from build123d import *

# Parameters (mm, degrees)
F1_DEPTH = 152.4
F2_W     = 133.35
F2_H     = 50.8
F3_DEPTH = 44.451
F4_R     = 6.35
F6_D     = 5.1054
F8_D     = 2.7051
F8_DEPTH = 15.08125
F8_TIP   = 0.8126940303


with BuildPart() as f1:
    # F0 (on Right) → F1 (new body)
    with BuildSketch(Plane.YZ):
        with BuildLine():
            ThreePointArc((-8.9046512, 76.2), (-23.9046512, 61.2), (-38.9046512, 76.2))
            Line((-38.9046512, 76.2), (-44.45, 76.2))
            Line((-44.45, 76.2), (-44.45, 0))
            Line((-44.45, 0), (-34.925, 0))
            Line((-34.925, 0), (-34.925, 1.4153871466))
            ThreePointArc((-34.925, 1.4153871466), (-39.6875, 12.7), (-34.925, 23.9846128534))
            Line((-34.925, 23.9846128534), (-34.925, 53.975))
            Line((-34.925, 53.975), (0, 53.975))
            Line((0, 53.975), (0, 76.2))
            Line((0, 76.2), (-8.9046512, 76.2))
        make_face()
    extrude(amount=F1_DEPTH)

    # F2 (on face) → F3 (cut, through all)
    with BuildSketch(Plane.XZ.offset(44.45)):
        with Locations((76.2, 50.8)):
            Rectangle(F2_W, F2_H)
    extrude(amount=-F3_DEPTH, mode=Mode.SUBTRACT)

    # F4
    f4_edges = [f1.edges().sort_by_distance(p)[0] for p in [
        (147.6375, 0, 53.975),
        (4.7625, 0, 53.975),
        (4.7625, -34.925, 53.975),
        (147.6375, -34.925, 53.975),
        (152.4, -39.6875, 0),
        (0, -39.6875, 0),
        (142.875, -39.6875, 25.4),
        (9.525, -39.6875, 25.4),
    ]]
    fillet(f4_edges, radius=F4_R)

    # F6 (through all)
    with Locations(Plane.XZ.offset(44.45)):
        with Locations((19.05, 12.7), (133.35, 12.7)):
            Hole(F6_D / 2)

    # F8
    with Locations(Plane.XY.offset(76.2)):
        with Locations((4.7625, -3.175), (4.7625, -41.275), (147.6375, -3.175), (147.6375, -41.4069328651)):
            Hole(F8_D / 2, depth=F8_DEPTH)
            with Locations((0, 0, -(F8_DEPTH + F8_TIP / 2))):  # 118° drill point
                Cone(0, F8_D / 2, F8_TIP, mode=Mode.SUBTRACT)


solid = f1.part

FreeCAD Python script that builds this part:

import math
import FreeCAD as App
import Part
import Sketcher
from FreeCAD import Vector
Q = App.Units.Quantity


def edges_at(feature, points):
    """Names of the edges that pass closest to the given points."""
    edges = feature.Shape.Edges
    near = lambda p: min(range(len(edges)), key=lambda i: edges[i].distToShape(Part.Vertex(*p))[0])
    return sorted({f"Edge{near(p) + 1}" for p in points})


def add_polygon(sketch, points):
    """Adds a closed chain of lines whose ends are joined by coincident constraints."""
    first, n = sketch.GeometryCount, len(points)
    for a, b in zip(points, points[1:] + points[:1]):
        sketch.addGeometry(Part.LineSegment(App.Vector(*a, 0), App.Vector(*b, 0)), False)
    for i in range(n):
        sketch.addConstraint(Sketcher.Constraint("Coincident", first + i, 2, first + (i + 1) % n, 1))

doc = App.newDocument("Part")
params = doc.addObject("Spreadsheet::Sheet", "Params")
for row, (alias, value) in enumerate([
    ("sketch1_height", "3 in"),
    ("sketch1_width", "0.375 in"),
    ("sketch1_width2", "1.375 in"),
    ("sketch1_height2", "0.875 in"),
    ("pad1_length", "6 in"),
    ("sketch2_height", "2 in"),
    ("sketch2_width", "5.25 in"),
    ("fillet_radius", "0.25 in"),
    ("sketch3_diameter", "0.201 in"),
    ("hole_diameter", "0.201 in"),
    ("hole2_diameter", "0.1065 in"),
    ("hole2_depth", "0.59375 in"),
], start=1):
    params.set(f"A{row}", alias)
    params.set(f"B{row}", "=" + value)
    params.setAlias(f"B{row}", alias)

body = doc.addObject("PartDesign::Body", "Body")

sketch1 = body.newObject("Sketcher::SketchObject", "Sketch")
sketch1.AttachmentSupport = (doc.getObject("YZ_Plane"), [""])
sketch1.MapMode = "FlatFace"
sketch1.addGeometry([
    Part.ArcOfCircle(Part.Circle(Vector(-23.904651, 76.2, 0), Vector(0, 0, 1), 15), math.radians(180), math.radians(360)),
    Part.LineSegment(Vector(-38.904651, 76.2, 0), Vector(-44.45, 76.2, 0)),
    Part.LineSegment(Vector(-44.45, 76.2, 0), Vector(-44.45, 0, 0)),
    Part.LineSegment(Vector(-44.45, 0, 0), Vector(-34.925, 0, 0)),
    Part.LineSegment(Vector(-34.925, 0, 0), Vector(-34.925, 1.415387, 0)),
    Part.ArcOfCircle(Part.Circle(Vector(-23.93696, 12.7, 0), Vector(0, 0, 1), 15.75054), math.radians(134.23712), math.radians(225.76288)),
    Part.LineSegment(Vector(-34.925, 23.984613, 0), Vector(-34.925, 53.975, 0)),
    Part.LineSegment(Vector(-34.925, 53.975, 0), Vector(0, 53.975, 0)),
    Part.LineSegment(Vector(0, 53.975, 0), Vector(0, 76.2, 0)),
    Part.LineSegment(Vector(0, 76.2, 0), Vector(-8.904651, 76.2, 0)),
], False)
sketch1.addConstraint([
    Sketcher.Constraint("Coincident", 0, 1, 1, 1),
    Sketcher.Constraint("Coincident", 1, 2, 2, 1),
    Sketcher.Constraint("Coincident", 2, 2, 3, 1),
    Sketcher.Constraint("Coincident", 3, 2, 4, 1),
    Sketcher.Constraint("Coincident", 4, 2, 5, 2),
    Sketcher.Constraint("Coincident", 5, 1, 6, 1),
    Sketcher.Constraint("Coincident", 6, 2, 7, 1),
    Sketcher.Constraint("Coincident", 7, 2, 8, 1),
    Sketcher.Constraint("Coincident", 8, 2, 9, 1),
    Sketcher.Constraint("Coincident", 9, 2, 0, 2),
    Sketcher.Constraint("Horizontal", 1),
    Sketcher.Constraint("Vertical", 2),
    Sketcher.Constraint("Horizontal", 3),
    Sketcher.Constraint("Vertical", 4),
    Sketcher.Constraint("Vertical", 6),
    Sketcher.Constraint("Horizontal", 7),
    Sketcher.Constraint("Vertical", 8),
    Sketcher.Constraint("Horizontal", 9),
    Sketcher.Constraint("PointOnObject", 2, 2, -1),
    Sketcher.Constraint("PointOnObject", 7, 2, -2),
    Sketcher.Constraint("Horizontal", 1, 2, 8, 2),
    Sketcher.Constraint("Vertical", 4, 2, 5, 1),
    Sketcher.Constraint("DistanceY", 2, 2, 2, 1, Q("3 in")),
    Sketcher.Constraint("DistanceY", -1, 1, 0, 3, Q("3 in")),
    Sketcher.Constraint("DistanceY", -1, 1, 5, 3, Q("0.5 in")),
    Sketcher.Constraint("Radius", 5, Q("0.6201 in")),
    Sketcher.Constraint("DistanceX", 3, 1, 3, 2, Q("0.375 in")),
    Sketcher.Constraint("DistanceX", 7, 1, 7, 2, Q("1.375 in")),
    Sketcher.Constraint("DistanceY", 8, 1, 8, 2, Q("0.875 in")),
    Sketcher.Constraint("Radius", 0, Q("15 mm")),
    Sketcher.Constraint("DistanceX", 5, 3, -1, 1, Q("0.9424 in")),
    Sketcher.Constraint("DistanceX", 1, 2, 1, 1, Q("5.545349 mm")),
])
sketch1.setExpression("Constraints[22]", "Params.sketch1_height")
sketch1.setExpression("Constraints[26]", "Params.sketch1_width")
sketch1.setExpression("Constraints[27]", "Params.sketch1_width2")
sketch1.setExpression("Constraints[28]", "Params.sketch1_height2")
pad1 = body.newObject("PartDesign::Pad", "Pad")
pad1.Profile = sketch1
pad1.setExpression("Length", "Params.pad1_length")

sketch2 = body.newObject("Sketcher::SketchObject", "Sketch001")
sketch2.AttachmentSupport = (doc.getObject("XZ_Plane"), [""])
sketch2.MapMode = "FlatFace"
sketch2.AttachmentOffset = App.Placement(Vector(0, 0, 1.75 * 25.4), App.Rotation())
add_polygon(sketch2, [(9.525, 76.2), (9.525, 25.4), (142.875, 25.4), (142.875, 76.2)])
sketch2.addConstraint([
    Sketcher.Constraint("Vertical", 0),
    Sketcher.Constraint("Horizontal", 1),
    Sketcher.Constraint("Vertical", 2),
    Sketcher.Constraint("Horizontal", 3),
    Sketcher.Constraint("DistanceY", 0, 2, 0, 1, Q("2 in")),
    Sketcher.Constraint("DistanceY", -1, 1, 0, 2, Q("1 in")),
    Sketcher.Constraint("DistanceX", 1, 1, 1, 2, Q("5.25 in")),
    Sketcher.Constraint("DistanceX", -1, 1, 0, 2, Q("0.375 in")),
])
sketch2.setExpression("Constraints[8]", "Params.sketch2_height")
sketch2.setExpression("Constraints[10]", "Params.sketch2_width")
pocket1 = body.newObject("PartDesign::Pocket", "Pocket")
pocket1.Profile = sketch2
pocket1.Type = "ThroughAll"
doc.recompute()

fillet = body.newObject("PartDesign::Fillet", "Fillet")
fillet.Base = (pocket1, edges_at(pocket1, [
    (147.637, 0, 53.975),
    (4.763, 0, 53.975),
    (4.763, -34.925, 53.975),
    (147.637, -34.925, 53.975),
    (152.4, -39.688, 0),
    (0, -39.688, 0),
    (142.875, -39.688, 25.4),
    (9.525, -39.688, 25.4),
]))
fillet.setExpression("Radius", "Params.fillet_radius")

sketch3 = body.newObject("Sketcher::SketchObject", "Sketch002")
sketch3.AttachmentSupport = (doc.getObject("XZ_Plane"), [""])
sketch3.MapMode = "FlatFace"
sketch3.AttachmentOffset = App.Placement(Vector(0, 0, 1.75 * 25.4), App.Rotation())
sketch3.addGeometry([
    Part.Circle(Vector(19.05, 12.7, 0), Vector(0, 0, 1), 2.5527),
    Part.Circle(Vector(133.35, 12.7, 0), Vector(0, 0, 1), 2.5527),
], False)
sketch3.addConstraint([
    Sketcher.Constraint("Equal", 0, 1),
    Sketcher.Constraint("Horizontal", 0, 3, 1, 3),
    Sketcher.Constraint("Diameter", 0, Q("0.201 in")),
    Sketcher.Constraint("DistanceY", -1, 1, 0, 3, Q("0.5 in")),
    Sketcher.Constraint("DistanceX", 0, 3, 1, 3, Q("4.5 in")),
    Sketcher.Constraint("DistanceX", -1, 1, 0, 3, Q("0.75 in")),
])
sketch3.setExpression("Constraints[2]", "Params.sketch3_diameter")
doc.recompute()
hole = body.newObject("PartDesign::Hole", "Hole")
hole.Profile = sketch3
hole.ThreadType = "None"
hole.setExpression("Diameter", "Params.hole_diameter")
hole.DepthType = "ThroughAll"

sketch4 = body.newObject("Sketcher::SketchObject", "Sketch003")
sketch4.AttachmentSupport = (doc.getObject("XY_Plane"), [""])
sketch4.MapMode = "FlatFace"
sketch4.AttachmentOffset = App.Placement(Vector(0, 0, 3 * 25.4), App.Rotation())
sketch4.addGeometry([
    Part.Circle(Vector(4.7625, -3.175, 0), Vector(0, 0, 1), 1.35255),
    Part.Circle(Vector(4.7625, -41.275, 0), Vector(0, 0, 1), 1.35255),
    Part.Circle(Vector(147.6375, -3.175, 0), Vector(0, 0, 1), 1.35255),
    Part.Circle(Vector(147.6375, -41.406933, 0), Vector(0, 0, 1), 1.35255),
], False)
sketch4.addConstraint([
    Sketcher.Constraint("Equal", 0, 1),
    Sketcher.Constraint("Equal", 1, 2),
    Sketcher.Constraint("Equal", 2, 3),
    Sketcher.Constraint("Horizontal", 0, 3, 2, 3),
    Sketcher.Constraint("Vertical", 0, 3, 1, 3),
    Sketcher.Constraint("Vertical", 2, 3, 3, 3),
    Sketcher.Constraint("Diameter", 0, Q("0.1065 in")),
    Sketcher.Constraint("DistanceY", 1, 3, 0, 3, Q("1.5 in")),
    Sketcher.Constraint("DistanceX", -1, 1, 0, 3, Q("0.1875 in")),
    Sketcher.Constraint("DistanceY", 0, 3, -1, 1, Q("0.125 in")),
    Sketcher.Constraint("DistanceX", -1, 1, 2, 3, Q("5.8125 in")),
    Sketcher.Constraint("DistanceY", 3, 3, -1, 1, Q("41.406933 mm")),
])
doc.recompute()
hole2 = body.newObject("PartDesign::Hole", "Hole001")
hole2.Profile = sketch4
hole2.ThreadType = "None"
hole2.setExpression("Diameter", "Params.hole2_diameter")
hole2.DepthType = "Dimension"
hole2.setExpression("Depth", "Params.hole2_depth")
hole2.DrillPoint = "Angled"
hole2.DrillPointAngle = 118

doc.recompute()
